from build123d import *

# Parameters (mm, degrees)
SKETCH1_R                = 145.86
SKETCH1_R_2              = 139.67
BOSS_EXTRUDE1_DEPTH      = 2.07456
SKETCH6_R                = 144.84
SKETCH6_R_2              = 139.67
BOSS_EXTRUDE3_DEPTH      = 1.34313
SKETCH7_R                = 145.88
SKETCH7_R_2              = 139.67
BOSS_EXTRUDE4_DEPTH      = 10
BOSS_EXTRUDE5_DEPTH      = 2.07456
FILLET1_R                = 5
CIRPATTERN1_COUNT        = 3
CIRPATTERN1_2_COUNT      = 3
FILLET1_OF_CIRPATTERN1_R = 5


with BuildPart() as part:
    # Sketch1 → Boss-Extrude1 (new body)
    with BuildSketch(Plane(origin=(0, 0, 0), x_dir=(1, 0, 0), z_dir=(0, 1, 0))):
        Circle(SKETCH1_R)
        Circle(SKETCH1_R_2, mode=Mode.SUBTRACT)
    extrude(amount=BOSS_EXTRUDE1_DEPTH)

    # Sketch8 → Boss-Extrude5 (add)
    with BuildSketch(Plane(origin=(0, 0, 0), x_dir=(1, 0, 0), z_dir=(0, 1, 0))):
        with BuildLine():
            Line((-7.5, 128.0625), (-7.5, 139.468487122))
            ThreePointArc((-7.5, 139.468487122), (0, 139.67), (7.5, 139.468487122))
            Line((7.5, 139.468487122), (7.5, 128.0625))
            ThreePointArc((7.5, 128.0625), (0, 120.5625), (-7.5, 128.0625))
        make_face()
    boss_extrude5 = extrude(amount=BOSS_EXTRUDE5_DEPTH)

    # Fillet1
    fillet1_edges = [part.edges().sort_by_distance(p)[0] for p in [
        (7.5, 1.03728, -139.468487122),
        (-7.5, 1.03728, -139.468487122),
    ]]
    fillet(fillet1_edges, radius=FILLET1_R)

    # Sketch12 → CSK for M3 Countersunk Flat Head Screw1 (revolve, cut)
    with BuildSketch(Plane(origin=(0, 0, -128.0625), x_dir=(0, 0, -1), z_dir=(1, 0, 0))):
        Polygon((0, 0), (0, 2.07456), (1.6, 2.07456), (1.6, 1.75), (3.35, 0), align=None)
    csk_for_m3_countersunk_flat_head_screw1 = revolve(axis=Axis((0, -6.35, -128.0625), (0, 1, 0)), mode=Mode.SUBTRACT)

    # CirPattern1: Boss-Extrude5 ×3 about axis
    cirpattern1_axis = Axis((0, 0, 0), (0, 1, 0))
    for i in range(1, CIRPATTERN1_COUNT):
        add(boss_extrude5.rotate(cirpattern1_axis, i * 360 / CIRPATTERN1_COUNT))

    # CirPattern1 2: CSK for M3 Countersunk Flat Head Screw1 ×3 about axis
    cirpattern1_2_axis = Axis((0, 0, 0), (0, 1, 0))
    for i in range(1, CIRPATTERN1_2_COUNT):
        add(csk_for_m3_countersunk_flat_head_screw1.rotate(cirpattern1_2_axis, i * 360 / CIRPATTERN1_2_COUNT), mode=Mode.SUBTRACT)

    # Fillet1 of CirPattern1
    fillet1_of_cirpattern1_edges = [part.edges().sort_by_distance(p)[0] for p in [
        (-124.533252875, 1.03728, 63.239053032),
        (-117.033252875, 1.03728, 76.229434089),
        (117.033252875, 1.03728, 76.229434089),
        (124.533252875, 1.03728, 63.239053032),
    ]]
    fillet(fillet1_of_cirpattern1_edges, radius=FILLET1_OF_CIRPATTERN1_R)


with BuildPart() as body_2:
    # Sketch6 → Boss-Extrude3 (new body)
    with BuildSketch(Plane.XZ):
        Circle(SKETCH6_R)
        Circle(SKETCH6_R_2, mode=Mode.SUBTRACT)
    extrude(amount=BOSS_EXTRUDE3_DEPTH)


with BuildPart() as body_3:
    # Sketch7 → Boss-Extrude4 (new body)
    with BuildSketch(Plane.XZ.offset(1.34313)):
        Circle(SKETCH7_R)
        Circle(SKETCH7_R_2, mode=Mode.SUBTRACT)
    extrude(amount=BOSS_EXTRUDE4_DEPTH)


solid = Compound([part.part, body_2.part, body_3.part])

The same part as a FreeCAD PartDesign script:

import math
import FreeCAD as App
import Part
import Sketcher
from FreeCAD import Vector
Q = App.Units.Quantity


def edges_at(feature, points):
    """Names of the edges that pass closest to the given points."""
    edges = feature.Shape.Edges
    near = lambda p: min(range(len(edges)), key=lambda i: edges[i].distToShape(Part.Vertex(*p))[0])
    return sorted({f"Edge{near(p) + 1}" for p in points})

doc = App.newDocument("Part")
body = doc.addObject("PartDesign::Body", "Body")

# Sketch on XZ plane
sketch1 = body.newObject("Sketcher::SketchObject", "Sketch")
sketch1.AttachmentSupport = (doc.getObject("XZ_Plane"), [""])
sketch1.MapMode = "FlatFace"
sketch1.addGeometry([
    Part.Circle(Vector(0, 0, 0), Vector(0, 0, 1), 146),
    Part.Circle(Vector(0, 0, 0), Vector(0, 0, 1), 140),
], False)
sketch1.addConstraint([
    Sketcher.Constraint("Coincident", 0, 3, -1, 1),
    Sketcher.Constraint("Coincident", 1, 3, -1, 1),
    Sketcher.Constraint("Diameter", 0, Q("291.72 mm")),
    Sketcher.Constraint("Diameter", 1, Q("279.34 mm")),
])
pad1 = body.newObject("PartDesign::Pad", "Pad")
pad1.Profile = sketch1
pad1.Length = 2.07456
pad1.Reversed = True

# Sketch on XZ plane
sketch2 = body.newObject("Sketcher::SketchObject", "Sketch001")
sketch2.AttachmentSupport = (doc.getObject("XZ_Plane"), [""])
sketch2.MapMode = "FlatFace"
sketch2.addGeometry([
    Part.LineSegment(Vector(-8, -139, 0), Vector(-8, -128, 0)),
    Part.ArcOfCircle(Part.Circle(Vector(0, -128, 0), Vector(0, 0, 1), 8), math.radians(0), math.radians(180)),
    Part.LineSegment(Vector(8, -128, 0), Vector(8, -139, 0)),
    Part.ArcOfCircle(Part.Circle(Vector(0, 0, 0), Vector(0, 0, 1), 140), math.radians(-93.08), math.radians(-86.92)),
], False)
sketch2.addConstraint([
    Sketcher.Constraint("Tangent", 0, 2, 1, 2),
    Sketcher.Constraint("Tangent", 1, 1, 2, 1),
    Sketcher.Constraint("Coincident", 2, 2, 3, 2),
    Sketcher.Constraint("Coincident", 3, 1, 0, 1),
    Sketcher.Constraint("Vertical", 0),
    Sketcher.Constraint("Vertical", 2),
    Sketcher.Constraint("Coincident", 3, 3, -1, 1),
    Sketcher.Constraint("PointOnObject", 1, 3, -2),
    Sketcher.Constraint("Radius", 1, Q("7.5 mm")),
    Sketcher.Constraint("Radius", 3, Q("139.67 mm")),
    Sketcher.Constraint("DistanceY", 1, 3, -1, 1, Q("128.0625 mm")),
])
pad2 = body.newObject("PartDesign::Pad", "Pad001")
pad2.Profile = sketch2
pad2.Length = 2.07456
pad2.Reversed = True
doc.recompute()

fillet = body.newObject("PartDesign::Fillet", "Fillet")
fillet.Base = (pad2, edges_at(pad2, [(7.5, 1.037, -139.468), (-7.5, 1.037, -139.468)]))
fillet.Radius = 5

# Sketch on YZ plane
sketch3 = body.newObject("Sketcher::SketchObject", "Sketch002")
sketch3.AttachmentSupport = (doc.getObject("YZ_Plane"), [""])
sketch3.MapMode = "FlatFace"
sketch3.addGeometry([
    Part.LineSegment(Vector(2.07, -128.06, 0), Vector(0, -128.06, 0)),  # 0
    Part.LineSegment(Vector(0, -128.06, 0), Vector(0, -131.41, 0)),  # 1
    Part.LineSegment(Vector(0, -131.41, 0), Vector(1.75, -129.66, 0)),  # 2
    Part.LineSegment(Vector(1.75, -129.66, 0), Vector(2.07, -129.66, 0)),  # 3
    Part.LineSegment(Vector(2.07, -129.66, 0), Vector(2.07, -128.06, 0)),  # 4
], False)
sketch3.addGeometry(Part.LineSegment(Vector(0, -128.06, 0), Vector(2.07, -128.06, 0)), True)  # axis
sketch3.addConstraint([
    Sketcher.Constraint("Coincident", 0, 2, 1, 1),
    Sketcher.Constraint("Coincident", 1, 2, 2, 1),
    Sketcher.Constraint("Coincident", 2, 2, 3, 1),
    Sketcher.Constraint("Coincident", 3, 2, 4, 1),
    Sketcher.Constraint("Coincident", 4, 2, 0, 1),
    Sketcher.Constraint("Horizontal", 0),
    Sketcher.Constraint("Vertical", 1),
    Sketcher.Constraint("Horizontal", 3),
    Sketcher.Constraint("Vertical", 4),
    Sketcher.Constraint("Horizontal", 5),
    Sketcher.Constraint("Coincident", 5, 1, 0, 2),
    Sketcher.Constraint("PointOnObject", 0, 2, -2),
    Sketcher.Constraint("Vertical", 3, 2, 5, 2),
    Sketcher.Constraint("Angle", 2, Q("45 deg")),
    Sketcher.Constraint("DistanceY", 4, 1, 4, 2, Q("1.6 mm")),
    Sketcher.Constraint("DistanceY", 1, 2, 1, 1, Q("3.35 mm")),
    Sketcher.Constraint("DistanceX", 0, 2, 0, 1, Q("2.07456 mm")),
    Sketcher.Constraint("DistanceY", 0, 2, -1, 1, Q("128.0625 mm")),
])
groove = body.newObject("PartDesign::Groove", "Groove")
groove.Profile = sketch3
groove.ReferenceAxis = (sketch3, ["Axis0"])
groove.Angle = 360
doc.recompute()

polarpattern = body.newObject("PartDesign::PolarPattern", "PolarPattern")
polarpattern.Originals = [pad2]
polarpattern.Axis = (doc.getObject("Y_Axis"), [""])
polarpattern.Angle = 360
polarpattern.Occurrences = 3
body.Tip = polarpattern
doc.recompute()

polarpattern2 = body.newObject("PartDesign::PolarPattern", "PolarPattern001")
polarpattern2.Originals = [groove]
polarpattern2.Axis = (doc.getObject("Y_Axis"), [""])
polarpattern2.Angle = 360
polarpattern2.Occurrences = 3
body.Tip = polarpattern2
doc.recompute()

fillet2 = body.newObject("PartDesign::Fillet", "Fillet001")
fillet2.Base = (polarpattern2, edges_at(polarpattern2, [
    (-124.533, 1.037, 63.239),
    (-117.033, 1.037, 76.229),
    (117.033, 1.037, 76.229),
    (124.533, 1.037, 63.239),
]))
fillet2.Radius = 5
body2 = doc.addObject("PartDesign::Body", "Body001")

# Sketch on XZ plane
sketch4 = body2.newObject("Sketcher::SketchObject", "Sketch003")
sketch4.AttachmentSupport = (doc.getObject("XZ_Plane001"), [""])
sketch4.MapMode = "FlatFace"
sketch4.addGeometry([
    Part.Circle(Vector(0, 0, 0), Vector(0, 0, 1), 145),
    Part.Circle(Vector(0, 0, 0), Vector(0, 0, 1), 140),
], False)
sketch4.addConstraint([
    Sketcher.Constraint("Coincident", 0, 3, -1, 1),
    Sketcher.Constraint("Coincident", 1, 3, -1, 1),
    Sketcher.Constraint("Diameter", 0, Q("289.68 mm")),
    Sketcher.Constraint("Diameter", 1, Q("279.34 mm")),
])
pad3 = body2.newObject("PartDesign::Pad", "Pad002")
pad3.Profile = sketch4
pad3.Length = 1.34313
body3 = doc.addObject("PartDesign::Body", "Body002")

# Sketch on XZ plane
sketch5 = body3.newObject("Sketcher::SketchObject", "Sketch004")
sketch5.AttachmentSupport = (doc.getObject("XZ_Plane002"), [""])
sketch5.MapMode = "FlatFace"
sketch5.AttachmentOffset = App.Placement(Vector(0, 0, 1.34313), App.Rotation())
sketch5.addGeometry([
    Part.Circle(Vector(0, 0, 0), Vector(0, 0, 1), 146),
    Part.Circle(Vector(0, 0, 0), Vector(0, 0, 1), 140),
], False)
sketch5.addConstraint([
    Sketcher.Constraint("Coincident", 0, 3, -1, 1),
    Sketcher.Constraint("Coincident", 1, 3, -1, 1),
    Sketcher.Constraint("Diameter", 0, Q("291.76 mm")),
    Sketcher.Constraint("Diameter", 1, Q("279.34 mm")),
])
pad4 = body3.newObject("PartDesign::Pad", "Pad003")
pad4.Profile = sketch5
pad4.Length = 10

doc.recompute()
